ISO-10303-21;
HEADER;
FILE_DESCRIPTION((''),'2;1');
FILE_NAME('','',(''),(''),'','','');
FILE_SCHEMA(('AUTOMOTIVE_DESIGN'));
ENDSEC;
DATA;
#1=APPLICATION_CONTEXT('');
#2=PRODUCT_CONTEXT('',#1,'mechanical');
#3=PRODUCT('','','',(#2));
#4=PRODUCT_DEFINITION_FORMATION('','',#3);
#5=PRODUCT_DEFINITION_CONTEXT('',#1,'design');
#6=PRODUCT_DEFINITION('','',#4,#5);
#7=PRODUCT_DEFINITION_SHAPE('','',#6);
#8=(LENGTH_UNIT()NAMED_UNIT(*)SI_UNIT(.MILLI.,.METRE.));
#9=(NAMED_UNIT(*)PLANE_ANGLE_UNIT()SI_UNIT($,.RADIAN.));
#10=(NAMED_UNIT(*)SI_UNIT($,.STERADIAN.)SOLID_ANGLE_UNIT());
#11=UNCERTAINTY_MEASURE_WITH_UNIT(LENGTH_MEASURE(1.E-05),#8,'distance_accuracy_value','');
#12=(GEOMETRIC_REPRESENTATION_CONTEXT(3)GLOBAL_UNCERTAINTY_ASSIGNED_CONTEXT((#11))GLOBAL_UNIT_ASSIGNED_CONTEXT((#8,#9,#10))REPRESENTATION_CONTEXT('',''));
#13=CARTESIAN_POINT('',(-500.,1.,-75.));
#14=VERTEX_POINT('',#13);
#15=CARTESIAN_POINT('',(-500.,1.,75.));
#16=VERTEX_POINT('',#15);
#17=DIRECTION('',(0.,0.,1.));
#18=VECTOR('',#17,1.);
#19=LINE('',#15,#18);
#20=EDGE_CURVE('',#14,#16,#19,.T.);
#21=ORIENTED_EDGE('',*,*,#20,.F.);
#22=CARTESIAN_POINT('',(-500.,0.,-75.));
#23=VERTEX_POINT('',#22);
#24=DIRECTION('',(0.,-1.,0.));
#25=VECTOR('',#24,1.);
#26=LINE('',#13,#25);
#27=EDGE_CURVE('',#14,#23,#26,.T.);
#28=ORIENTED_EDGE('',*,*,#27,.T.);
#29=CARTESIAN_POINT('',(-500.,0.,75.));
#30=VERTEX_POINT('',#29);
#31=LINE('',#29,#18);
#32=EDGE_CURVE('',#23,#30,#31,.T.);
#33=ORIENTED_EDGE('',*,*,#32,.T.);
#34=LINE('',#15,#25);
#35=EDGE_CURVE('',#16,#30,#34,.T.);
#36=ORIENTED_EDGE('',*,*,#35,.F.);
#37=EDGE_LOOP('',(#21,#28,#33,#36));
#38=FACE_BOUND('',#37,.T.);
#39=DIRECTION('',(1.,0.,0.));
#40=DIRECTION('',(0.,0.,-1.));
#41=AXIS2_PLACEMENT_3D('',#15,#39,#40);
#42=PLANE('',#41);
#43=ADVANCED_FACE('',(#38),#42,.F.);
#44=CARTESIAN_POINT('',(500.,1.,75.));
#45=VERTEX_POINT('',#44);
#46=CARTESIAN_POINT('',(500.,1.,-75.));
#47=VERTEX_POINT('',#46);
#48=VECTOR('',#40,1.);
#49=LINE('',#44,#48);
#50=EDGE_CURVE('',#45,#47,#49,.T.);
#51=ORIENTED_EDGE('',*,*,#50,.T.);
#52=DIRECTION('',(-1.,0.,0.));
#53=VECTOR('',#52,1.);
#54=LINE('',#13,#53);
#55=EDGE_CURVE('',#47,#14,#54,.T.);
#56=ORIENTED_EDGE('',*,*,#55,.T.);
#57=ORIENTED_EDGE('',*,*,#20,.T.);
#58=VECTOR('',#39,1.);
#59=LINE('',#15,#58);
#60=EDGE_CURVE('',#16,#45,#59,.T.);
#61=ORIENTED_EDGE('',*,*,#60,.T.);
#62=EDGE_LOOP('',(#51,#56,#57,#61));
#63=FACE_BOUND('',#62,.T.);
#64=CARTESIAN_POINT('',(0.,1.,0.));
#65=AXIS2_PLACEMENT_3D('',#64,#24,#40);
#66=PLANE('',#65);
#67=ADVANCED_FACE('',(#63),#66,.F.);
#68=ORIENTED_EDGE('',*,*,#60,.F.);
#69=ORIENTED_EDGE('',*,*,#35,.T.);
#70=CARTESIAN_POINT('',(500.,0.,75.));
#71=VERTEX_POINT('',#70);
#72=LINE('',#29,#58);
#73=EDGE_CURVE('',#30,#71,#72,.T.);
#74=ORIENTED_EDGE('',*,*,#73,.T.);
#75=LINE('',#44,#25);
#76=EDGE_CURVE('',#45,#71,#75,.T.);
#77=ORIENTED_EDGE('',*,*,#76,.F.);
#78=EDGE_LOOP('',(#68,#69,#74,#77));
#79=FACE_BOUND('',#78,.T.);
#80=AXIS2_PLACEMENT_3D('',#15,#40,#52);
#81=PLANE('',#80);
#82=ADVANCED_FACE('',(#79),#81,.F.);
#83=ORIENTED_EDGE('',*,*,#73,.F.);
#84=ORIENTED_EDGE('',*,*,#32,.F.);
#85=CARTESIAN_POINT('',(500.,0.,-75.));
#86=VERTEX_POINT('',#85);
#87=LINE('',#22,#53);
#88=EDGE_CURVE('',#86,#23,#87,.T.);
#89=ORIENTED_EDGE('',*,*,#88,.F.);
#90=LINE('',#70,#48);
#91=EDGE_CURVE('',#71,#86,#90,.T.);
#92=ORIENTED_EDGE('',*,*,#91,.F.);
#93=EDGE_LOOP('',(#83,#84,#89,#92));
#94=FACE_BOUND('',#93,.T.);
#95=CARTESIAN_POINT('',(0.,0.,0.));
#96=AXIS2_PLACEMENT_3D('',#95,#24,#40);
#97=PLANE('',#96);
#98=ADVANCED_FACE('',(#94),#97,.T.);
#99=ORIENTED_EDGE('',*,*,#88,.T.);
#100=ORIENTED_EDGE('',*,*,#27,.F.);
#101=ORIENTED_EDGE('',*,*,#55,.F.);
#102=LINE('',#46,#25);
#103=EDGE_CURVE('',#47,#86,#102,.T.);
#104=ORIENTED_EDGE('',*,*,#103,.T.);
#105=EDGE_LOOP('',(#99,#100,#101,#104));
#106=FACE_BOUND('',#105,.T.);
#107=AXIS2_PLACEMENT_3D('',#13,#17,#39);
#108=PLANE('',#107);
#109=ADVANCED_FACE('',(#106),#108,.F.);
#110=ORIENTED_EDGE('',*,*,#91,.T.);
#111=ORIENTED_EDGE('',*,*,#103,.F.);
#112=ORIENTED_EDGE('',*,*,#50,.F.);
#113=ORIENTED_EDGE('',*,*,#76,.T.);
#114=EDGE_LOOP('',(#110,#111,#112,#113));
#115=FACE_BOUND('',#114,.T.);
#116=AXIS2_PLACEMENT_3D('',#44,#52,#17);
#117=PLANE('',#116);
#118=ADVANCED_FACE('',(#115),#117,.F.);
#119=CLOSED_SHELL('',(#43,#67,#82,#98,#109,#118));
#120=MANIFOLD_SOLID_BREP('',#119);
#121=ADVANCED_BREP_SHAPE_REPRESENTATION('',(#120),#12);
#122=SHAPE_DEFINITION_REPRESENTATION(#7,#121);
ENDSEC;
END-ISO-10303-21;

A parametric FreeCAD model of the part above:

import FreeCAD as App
import Part
import Sketcher
from FreeCAD import Vector


def add_polygon(sketch, points):
    """Adds a closed chain of lines whose ends are joined by coincident constraints."""
    first, n = sketch.GeometryCount, len(points)
    for a, b in zip(points, points[1:] + points[:1]):
        sketch.addGeometry(Part.LineSegment(App.Vector(*a, 0), App.Vector(*b, 0)), False)
    for i in range(n):
        sketch.addConstraint(Sketcher.Constraint("Coincident", first + i, 2, first + (i + 1) % n, 1))

doc = App.newDocument("Part")
body = doc.addObject("PartDesign::Body", "Body")

sketch1 = body.newObject("Sketcher::SketchObject", "Sketch")
sketch1.AttachmentSupport = (doc.getObject("XZ_Plane"), [""])
sketch1.MapMode = "FlatFace"
add_polygon(sketch1, [(-500, -75), (-500, 75), (500, 75), (500, -75)])
sketch1.addConstraint([
    Sketcher.Constraint("Vertical", 0),
    Sketcher.Constraint("Horizontal", 1),
    Sketcher.Constraint("Vertical", 2),
    Sketcher.Constraint("Horizontal", 3),
    Sketcher.Constraint("Symmetric", 0, 2, 2, 2, -1, 1),
    Sketcher.Constraint("DistanceX", 1, 1, 1, 2, 1000.0),
    Sketcher.Constraint("DistanceY", 0, 1, 0, 2, 150.0),
])
pad1 = body.newObject("PartDesign::Pad", "Pad")
pad1.Profile = sketch1
pad1.Length = 1
pad1.Reversed = True

doc.recompute()
